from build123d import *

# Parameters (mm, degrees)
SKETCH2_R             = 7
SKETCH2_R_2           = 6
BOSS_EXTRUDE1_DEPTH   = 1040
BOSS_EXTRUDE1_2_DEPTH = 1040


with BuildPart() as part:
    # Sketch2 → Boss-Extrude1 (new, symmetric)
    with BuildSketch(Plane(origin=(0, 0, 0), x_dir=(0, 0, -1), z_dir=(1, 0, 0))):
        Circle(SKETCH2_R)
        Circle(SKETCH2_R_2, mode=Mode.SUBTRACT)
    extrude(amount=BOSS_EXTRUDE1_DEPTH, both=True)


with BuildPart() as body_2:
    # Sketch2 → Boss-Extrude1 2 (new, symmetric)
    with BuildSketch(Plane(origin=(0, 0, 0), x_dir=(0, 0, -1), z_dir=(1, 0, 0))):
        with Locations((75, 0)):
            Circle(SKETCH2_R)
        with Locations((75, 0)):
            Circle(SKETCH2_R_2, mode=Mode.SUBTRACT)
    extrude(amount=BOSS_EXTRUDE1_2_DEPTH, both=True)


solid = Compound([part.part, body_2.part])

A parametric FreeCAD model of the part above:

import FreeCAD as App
import Part
import Sketcher

V = App.Vector
Q = App.Units.Quantity

doc = App.newDocument("Part")
body = doc.addObject("PartDesign::Body", "Body")

sketch1 = doc.addObject("Sketcher::SketchObject", "Sketch")
body.addObject(sketch1)
sketch1.AttachmentSupport = (doc.YZ_Plane, [""])
sketch1.MapMode = "FlatFace"
sketch1.addGeometry(Part.Circle(V(0, 0, 0), V(0, 0, 1), 7), False)
sketch1.addGeometry(Part.Circle(V(0, 0, 0), V(0, 0, 1), 6), False)
sketch1.addConstraint(Sketcher.Constraint("Coincident", 0, 3, -1, 1))
sketch1.addConstraint(Sketcher.Constraint("Coincident", 1, 3, -1, 1))
sketch1.addConstraint(Sketcher.Constraint("Diameter", 0, Q("14 mm")))
sketch1.addConstraint(Sketcher.Constraint("Diameter", 1, Q("12 mm")))
pad1 = doc.addObject("PartDesign::Pad", "Pad")
body.addObject(pad1)
pad1.Profile = sketch1
pad1.Length = 2080
pad1.Midplane = True
body2 = doc.addObject("PartDesign::Body", "Body001")

sketch2 = doc.addObject("Sketcher::SketchObject", "Sketch001")
body2.addObject(sketch2)
sketch2.AttachmentSupport = (doc.getObject("YZ_Plane001"), [""])
sketch2.MapMode = "FlatFace"
sketch2.addGeometry(Part.Circle(V(0, -75, 0), V(0, 0, 1), 7), False)
sketch2.addGeometry(Part.Circle(V(0, -75, 0), V(0, 0, 1), 6), False)
sketch2.addConstraint(Sketcher.Constraint("Coincident", 1, 3, 0, 3))
sketch2.addConstraint(Sketcher.Constraint("PointOnObject", 0, 3, -2))
sketch2.addConstraint(Sketcher.Constraint("Diameter", 0, Q("14 mm")))
sketch2.addConstraint(Sketcher.Constraint("Diameter", 1, Q("12 mm")))
sketch2.addConstraint(Sketcher.Constraint("DistanceY", 0, 3, -1, 1, Q("75 mm")))
pad2 = doc.addObject("PartDesign::Pad", "Pad001")
body2.addObject(pad2)
pad2.Profile = sketch2
pad2.Length = 2080
pad2.Midplane = True

doc.recompute()
